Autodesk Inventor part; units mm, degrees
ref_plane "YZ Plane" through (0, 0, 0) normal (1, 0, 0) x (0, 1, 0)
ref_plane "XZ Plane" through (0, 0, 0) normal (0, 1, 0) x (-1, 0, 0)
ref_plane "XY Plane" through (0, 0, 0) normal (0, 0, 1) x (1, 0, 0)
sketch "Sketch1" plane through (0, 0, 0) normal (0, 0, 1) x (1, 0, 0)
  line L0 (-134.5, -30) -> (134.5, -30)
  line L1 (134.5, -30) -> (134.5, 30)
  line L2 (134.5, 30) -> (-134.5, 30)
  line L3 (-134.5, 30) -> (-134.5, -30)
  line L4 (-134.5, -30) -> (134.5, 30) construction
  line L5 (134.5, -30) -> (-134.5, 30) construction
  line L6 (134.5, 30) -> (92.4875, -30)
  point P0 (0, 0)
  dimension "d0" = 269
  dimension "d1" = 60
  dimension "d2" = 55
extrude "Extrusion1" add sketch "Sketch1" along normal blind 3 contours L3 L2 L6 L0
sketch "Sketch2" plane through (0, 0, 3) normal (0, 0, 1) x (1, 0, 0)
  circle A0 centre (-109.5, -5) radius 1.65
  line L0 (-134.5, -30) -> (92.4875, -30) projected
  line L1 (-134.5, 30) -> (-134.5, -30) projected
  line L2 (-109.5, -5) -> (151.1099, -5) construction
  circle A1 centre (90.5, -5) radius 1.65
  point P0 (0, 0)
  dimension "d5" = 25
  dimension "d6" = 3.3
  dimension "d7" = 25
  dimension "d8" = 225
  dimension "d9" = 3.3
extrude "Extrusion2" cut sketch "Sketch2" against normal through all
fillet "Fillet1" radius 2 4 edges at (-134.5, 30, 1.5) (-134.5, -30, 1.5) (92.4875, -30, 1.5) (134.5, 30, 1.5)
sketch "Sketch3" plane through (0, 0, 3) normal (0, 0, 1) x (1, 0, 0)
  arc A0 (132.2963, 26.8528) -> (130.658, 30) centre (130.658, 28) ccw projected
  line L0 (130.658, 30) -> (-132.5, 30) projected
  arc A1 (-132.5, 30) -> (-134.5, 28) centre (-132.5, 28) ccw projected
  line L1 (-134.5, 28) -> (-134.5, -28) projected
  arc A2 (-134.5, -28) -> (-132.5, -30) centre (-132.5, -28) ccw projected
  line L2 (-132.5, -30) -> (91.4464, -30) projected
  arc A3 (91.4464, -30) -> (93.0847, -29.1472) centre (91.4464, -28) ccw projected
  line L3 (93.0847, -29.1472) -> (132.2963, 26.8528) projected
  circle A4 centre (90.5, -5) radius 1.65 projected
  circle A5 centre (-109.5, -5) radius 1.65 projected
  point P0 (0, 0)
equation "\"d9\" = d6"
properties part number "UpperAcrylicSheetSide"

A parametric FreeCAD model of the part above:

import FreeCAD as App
import Part
import Sketcher

V = App.Vector
Q = App.Units.Quantity


def edges_at(feature, points):
    """Names of the edges that pass closest to the given points."""
    edges = feature.Shape.Edges
    near = lambda p: min(range(len(edges)), key=lambda i: edges[i].distToShape(Part.Vertex(*p))[0])
    return sorted({f"Edge{near(p) + 1}" for p in points})


def add_polygon(sketch, points):
    """Adds a closed chain of lines whose ends are joined by coincident constraints."""
    first, n = sketch.GeometryCount, len(points)
    for a, b in zip(points, points[1:] + points[:1]):
        sketch.addGeometry(Part.LineSegment(App.Vector(*a, 0), App.Vector(*b, 0)), False)
    for i in range(n):
        sketch.addConstraint(Sketcher.Constraint("Coincident", first + i, 2, first + (i + 1) % n, 1))

doc = App.newDocument("Part")
body = doc.addObject("PartDesign::Body", "Body")

# Sketch on XY plane
sketch1 = body.newObject("Sketcher::SketchObject", "Sketch")
sketch1.AttachmentSupport = (doc.getObject("XY_Plane"), [""])
sketch1.MapMode = "FlatFace"
add_polygon(sketch1, [(-134, 30), (-134, -30), (92, -30), (134, 30)])  # lines 0-3
sketch1.addConstraint(Sketcher.Constraint("Vertical", 0))
sketch1.addConstraint(Sketcher.Constraint("Horizontal", 1))
sketch1.addConstraint(Sketcher.Constraint("Horizontal", 3))
sketch1.addConstraint(Sketcher.Constraint("Symmetric", 0, 2, 2, 2, -1, 1))
sketch1.addConstraint(Sketcher.Constraint("DistanceX", 3, 2, 3, 1, 269.0))
sketch1.addConstraint(Sketcher.Constraint("DistanceY", 0, 2, 0, 1, 60.0))
sketch1.addConstraint(Sketcher.Constraint("Angle", 2, Q("55 deg")))
pad1 = body.newObject("PartDesign::Pad", "Pad")
pad1.Profile = sketch1
pad1.Length = 3

# Sketch on XY plane
sketch2 = body.newObject("Sketcher::SketchObject", "Sketch001")
sketch2.AttachmentSupport = (doc.getObject("XY_Plane"), [""])
sketch2.MapMode = "FlatFace"
sketch2.AttachmentOffset = App.Placement(V(0, 0, 3), App.Rotation())
sketch2.addGeometry(Part.Circle(V(-109.5, -5, 0), V(0, 0, 1), 1.6), False)
sketch2.addGeometry(Part.Circle(V(90.5, -5, 0), V(0, 0, 1), 1.6), False)
sketch2.addConstraint(Sketcher.Constraint("Equal", 0, 1))
sketch2.addConstraint(Sketcher.Constraint("Horizontal", 0, 3, 1, 3))
sketch2.addConstraint(Sketcher.Constraint("Diameter", 0, 3.3))
sketch2.addConstraint(Sketcher.Constraint("DistanceY", 0, 3, -1, 1, 5.0))
sketch2.addConstraint(Sketcher.Constraint("DistanceX", 0, 3, 1, 3, 200.0))
sketch2.addConstraint(Sketcher.Constraint("DistanceX", 0, 3, -1, 1, 109.5))
pocket1 = body.newObject("PartDesign::Pocket", "Pocket")
pocket1.Profile = sketch2
pocket1.Type = "ThroughAll"
doc.recompute()

fillet = body.newObject("PartDesign::Fillet", "Fillet")
fillet.Base = (pocket1, edges_at(pocket1, [
    (-134.5, 30, 1.5),
    (-134.5, -30, 1.5),
    (92.487, -30, 1.5),
    (134.5, 30, 1.5),
]))
fillet.Radius = 2

doc.recompute()
